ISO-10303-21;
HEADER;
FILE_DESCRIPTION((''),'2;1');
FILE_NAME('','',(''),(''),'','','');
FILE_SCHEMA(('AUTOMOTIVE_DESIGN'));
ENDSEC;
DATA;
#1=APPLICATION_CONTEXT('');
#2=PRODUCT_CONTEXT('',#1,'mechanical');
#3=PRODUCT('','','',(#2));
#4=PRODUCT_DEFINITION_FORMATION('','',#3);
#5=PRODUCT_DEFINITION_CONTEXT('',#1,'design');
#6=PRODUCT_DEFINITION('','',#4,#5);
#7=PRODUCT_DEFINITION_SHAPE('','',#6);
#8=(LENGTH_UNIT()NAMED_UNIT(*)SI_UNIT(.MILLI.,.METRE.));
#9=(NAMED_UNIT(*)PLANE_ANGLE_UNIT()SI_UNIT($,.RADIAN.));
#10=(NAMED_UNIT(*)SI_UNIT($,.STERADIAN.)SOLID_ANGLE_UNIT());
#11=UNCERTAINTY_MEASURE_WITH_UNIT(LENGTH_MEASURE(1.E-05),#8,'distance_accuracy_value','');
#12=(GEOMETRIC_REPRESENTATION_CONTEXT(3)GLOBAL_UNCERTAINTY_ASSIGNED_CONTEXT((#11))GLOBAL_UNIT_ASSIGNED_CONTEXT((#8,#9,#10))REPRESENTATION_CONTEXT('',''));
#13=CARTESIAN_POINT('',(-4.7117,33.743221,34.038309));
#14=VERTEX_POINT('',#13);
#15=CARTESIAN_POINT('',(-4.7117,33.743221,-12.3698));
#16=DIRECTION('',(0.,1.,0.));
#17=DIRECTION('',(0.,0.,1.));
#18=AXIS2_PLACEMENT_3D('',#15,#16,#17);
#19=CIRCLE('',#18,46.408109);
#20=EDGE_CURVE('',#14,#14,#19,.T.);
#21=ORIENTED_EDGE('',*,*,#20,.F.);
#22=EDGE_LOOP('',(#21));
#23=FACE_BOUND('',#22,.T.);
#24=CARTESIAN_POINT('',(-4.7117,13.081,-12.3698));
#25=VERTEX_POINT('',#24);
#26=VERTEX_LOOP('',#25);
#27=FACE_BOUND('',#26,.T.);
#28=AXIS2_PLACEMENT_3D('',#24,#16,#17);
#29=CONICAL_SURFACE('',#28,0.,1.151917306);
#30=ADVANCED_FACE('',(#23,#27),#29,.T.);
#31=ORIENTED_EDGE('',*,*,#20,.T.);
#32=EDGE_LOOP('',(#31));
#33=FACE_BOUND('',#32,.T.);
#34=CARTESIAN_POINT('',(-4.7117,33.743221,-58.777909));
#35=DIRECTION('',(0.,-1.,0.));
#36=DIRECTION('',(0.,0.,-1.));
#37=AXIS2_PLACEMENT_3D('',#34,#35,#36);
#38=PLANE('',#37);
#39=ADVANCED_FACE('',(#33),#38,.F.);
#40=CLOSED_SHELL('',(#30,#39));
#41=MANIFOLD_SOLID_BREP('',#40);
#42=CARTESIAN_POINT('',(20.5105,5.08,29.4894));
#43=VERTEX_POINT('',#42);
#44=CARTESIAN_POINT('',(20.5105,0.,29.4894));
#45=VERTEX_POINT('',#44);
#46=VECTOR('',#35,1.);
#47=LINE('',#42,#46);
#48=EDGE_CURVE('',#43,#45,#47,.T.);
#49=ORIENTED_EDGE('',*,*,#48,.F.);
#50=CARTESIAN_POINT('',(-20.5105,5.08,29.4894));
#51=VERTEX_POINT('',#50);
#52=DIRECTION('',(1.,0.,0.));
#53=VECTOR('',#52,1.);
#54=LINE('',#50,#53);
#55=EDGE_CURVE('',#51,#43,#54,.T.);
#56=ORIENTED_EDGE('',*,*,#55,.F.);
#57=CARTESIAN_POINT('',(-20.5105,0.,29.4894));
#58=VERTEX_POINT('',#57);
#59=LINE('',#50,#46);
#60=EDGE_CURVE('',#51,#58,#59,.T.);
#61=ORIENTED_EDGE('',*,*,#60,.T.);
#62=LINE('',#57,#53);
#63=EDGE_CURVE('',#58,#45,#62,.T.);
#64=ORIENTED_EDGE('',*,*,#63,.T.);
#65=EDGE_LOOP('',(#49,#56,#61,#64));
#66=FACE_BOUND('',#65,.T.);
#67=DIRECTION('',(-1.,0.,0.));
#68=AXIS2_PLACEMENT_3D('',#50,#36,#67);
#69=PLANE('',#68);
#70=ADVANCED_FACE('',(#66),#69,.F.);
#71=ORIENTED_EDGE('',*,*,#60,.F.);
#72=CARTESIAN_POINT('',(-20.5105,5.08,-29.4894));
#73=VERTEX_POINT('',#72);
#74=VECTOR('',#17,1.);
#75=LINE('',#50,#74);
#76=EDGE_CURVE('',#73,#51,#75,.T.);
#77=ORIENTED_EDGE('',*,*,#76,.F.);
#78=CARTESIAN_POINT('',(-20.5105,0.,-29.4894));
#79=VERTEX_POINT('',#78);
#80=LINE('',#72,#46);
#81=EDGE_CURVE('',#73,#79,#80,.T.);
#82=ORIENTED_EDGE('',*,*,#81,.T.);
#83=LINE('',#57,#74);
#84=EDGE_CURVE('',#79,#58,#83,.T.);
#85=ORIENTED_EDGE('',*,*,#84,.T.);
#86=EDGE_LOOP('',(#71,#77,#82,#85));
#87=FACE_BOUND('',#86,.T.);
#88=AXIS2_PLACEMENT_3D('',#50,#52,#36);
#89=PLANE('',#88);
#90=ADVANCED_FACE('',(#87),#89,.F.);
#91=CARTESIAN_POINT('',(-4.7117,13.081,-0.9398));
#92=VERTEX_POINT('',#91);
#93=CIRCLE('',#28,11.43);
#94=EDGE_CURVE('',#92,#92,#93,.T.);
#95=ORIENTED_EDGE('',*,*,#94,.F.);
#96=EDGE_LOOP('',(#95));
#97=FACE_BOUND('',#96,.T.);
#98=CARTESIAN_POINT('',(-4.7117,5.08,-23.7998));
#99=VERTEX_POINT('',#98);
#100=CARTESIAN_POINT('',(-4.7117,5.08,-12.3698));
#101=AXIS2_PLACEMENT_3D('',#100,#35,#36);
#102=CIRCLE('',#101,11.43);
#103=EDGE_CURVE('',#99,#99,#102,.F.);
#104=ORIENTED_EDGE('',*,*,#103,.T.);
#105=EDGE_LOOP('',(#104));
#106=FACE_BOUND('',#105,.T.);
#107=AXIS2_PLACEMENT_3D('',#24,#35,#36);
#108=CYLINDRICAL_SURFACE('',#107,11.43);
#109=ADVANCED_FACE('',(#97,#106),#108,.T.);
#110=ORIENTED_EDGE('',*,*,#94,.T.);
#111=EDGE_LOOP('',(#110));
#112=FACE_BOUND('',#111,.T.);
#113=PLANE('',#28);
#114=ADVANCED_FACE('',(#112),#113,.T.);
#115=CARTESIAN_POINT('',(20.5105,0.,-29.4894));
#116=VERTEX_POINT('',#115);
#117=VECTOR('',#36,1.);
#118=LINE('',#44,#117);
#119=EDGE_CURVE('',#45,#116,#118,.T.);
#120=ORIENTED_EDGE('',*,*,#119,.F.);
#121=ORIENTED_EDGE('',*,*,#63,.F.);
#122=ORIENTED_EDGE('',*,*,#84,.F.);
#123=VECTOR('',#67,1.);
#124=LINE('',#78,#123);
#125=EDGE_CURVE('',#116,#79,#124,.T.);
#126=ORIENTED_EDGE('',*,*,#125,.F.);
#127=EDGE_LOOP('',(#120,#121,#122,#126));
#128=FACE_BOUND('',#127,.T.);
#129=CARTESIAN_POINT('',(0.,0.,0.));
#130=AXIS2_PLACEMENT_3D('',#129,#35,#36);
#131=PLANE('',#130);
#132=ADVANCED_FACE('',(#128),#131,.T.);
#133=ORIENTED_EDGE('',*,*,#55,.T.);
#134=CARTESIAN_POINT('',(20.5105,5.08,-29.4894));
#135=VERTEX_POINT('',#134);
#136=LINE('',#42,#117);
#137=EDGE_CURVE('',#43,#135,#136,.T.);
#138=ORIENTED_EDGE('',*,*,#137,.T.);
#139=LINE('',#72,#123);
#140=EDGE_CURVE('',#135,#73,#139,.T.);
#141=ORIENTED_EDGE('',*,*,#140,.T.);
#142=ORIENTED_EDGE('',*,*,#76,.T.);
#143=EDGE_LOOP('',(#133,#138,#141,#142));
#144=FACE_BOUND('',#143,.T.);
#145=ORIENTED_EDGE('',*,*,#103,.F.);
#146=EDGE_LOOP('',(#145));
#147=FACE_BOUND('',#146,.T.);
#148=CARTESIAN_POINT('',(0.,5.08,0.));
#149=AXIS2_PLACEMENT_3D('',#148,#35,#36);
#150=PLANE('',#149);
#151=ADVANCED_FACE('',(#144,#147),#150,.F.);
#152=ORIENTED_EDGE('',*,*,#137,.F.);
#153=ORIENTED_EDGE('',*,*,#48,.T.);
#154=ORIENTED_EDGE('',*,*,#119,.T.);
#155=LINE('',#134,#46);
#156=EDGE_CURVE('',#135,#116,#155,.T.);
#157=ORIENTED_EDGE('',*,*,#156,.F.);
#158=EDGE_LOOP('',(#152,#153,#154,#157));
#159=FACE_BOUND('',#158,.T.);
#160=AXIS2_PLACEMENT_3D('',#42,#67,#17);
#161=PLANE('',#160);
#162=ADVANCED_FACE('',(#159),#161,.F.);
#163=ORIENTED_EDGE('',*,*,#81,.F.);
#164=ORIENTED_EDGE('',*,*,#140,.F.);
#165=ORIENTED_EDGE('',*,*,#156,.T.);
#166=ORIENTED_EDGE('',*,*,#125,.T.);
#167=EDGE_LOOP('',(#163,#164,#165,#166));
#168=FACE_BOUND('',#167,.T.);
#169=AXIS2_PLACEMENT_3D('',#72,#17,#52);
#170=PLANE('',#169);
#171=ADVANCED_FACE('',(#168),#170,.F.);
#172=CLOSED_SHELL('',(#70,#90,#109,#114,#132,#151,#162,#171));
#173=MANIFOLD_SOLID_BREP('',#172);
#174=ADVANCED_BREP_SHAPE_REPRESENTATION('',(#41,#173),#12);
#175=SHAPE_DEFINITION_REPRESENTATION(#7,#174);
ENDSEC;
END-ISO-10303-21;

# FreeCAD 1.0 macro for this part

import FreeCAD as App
import Part
import Sketcher

V = App.Vector
Q = App.Units.Quantity


def add_polygon(sketch, points):
    """Adds a closed chain of lines whose ends are joined by coincident constraints."""
    first, n = sketch.GeometryCount, len(points)
    for a, b in zip(points, points[1:] + points[:1]):
        sketch.addGeometry(Part.LineSegment(App.Vector(*a, 0), App.Vector(*b, 0)), False)
    for i in range(n):
        sketch.addConstraint(Sketcher.Constraint("Coincident", first + i, 2, first + (i + 1) % n, 1))

doc = App.newDocument("Part")
body = doc.addObject("PartDesign::Body", "Body")

sketch1 = body.newObject("Sketcher::SketchObject", "Sketch")
sketch1.AttachmentSupport = (doc.getObject("XZ_Plane"), [""])
sketch1.MapMode = "FlatFace"
add_polygon(sketch1, [(-21, -29), (-21, 29), (21, 29), (21, -29)])
sketch1.addConstraint([
    Sketcher.Constraint("Vertical", 0),
    Sketcher.Constraint("Horizontal", 1),
    Sketcher.Constraint("Vertical", 2),
    Sketcher.Constraint("Horizontal", 3),
    Sketcher.Constraint("Symmetric", 0, 2, 2, 2, -1, 1),
    Sketcher.Constraint("DistanceX", 1, 1, 1, 2, Q("1.615 in")),
    Sketcher.Constraint("DistanceY", 0, 1, 0, 2, Q("2.322 in")),
])
pad1 = body.newObject("PartDesign::Pad", "Pad")
pad1.Profile = sketch1
pad1.Length = Q("0.2 in")
pad1.Reversed = True

sketch2 = body.newObject("Sketcher::SketchObject", "Sketch001")
sketch2.AttachmentSupport = (doc.getObject("XZ_Plane"), [""])
sketch2.MapMode = "FlatFace"
sketch2.AttachmentOffset = App.Placement(V(0, 0, -0.2 * 25.4), App.Rotation())
sketch2.addGeometry(Part.Circle(V(-5, -12, 0), V(0, 0, 1), 11), False)
sketch2.addConstraint([
    Sketcher.Constraint("Diameter", 0, Q("0.9 in")),
    Sketcher.Constraint("DistanceY", 0, 3, -1, 1, Q("0.487 in")),
    Sketcher.Constraint("DistanceX", 0, 3, -1, 1, Q("0.1855 in")),
])
pad2 = body.newObject("PartDesign::Pad", "Pad001")
pad2.Profile = sketch2
pad2.Length = Q("0.315 in")
pad2.Reversed = True
body2 = doc.addObject("PartDesign::Body", "Body001")

sketch3 = body2.newObject("Sketcher::SketchObject", "Sketch002")
sketch3.AttachmentSupport = (doc.getObject("YZ_Plane001"), [""])
sketch3.MapMode = "FlatFace"
sketch3.AttachmentOffset = App.Placement(V(0, 0, -0.1855 * 25.4), App.Rotation())
add_polygon(sketch3, [(13, -12), (34, -59), (34, -12)])
sketch3.addGeometry(Part.LineSegment(V(34, -12, 0), V(13, -12, 0)), True)
sketch3.addConstraint([
    Sketcher.Constraint("Vertical", 1),
    Sketcher.Constraint("Horizontal", 2),
    Sketcher.Constraint("Horizontal", 3),
    Sketcher.Constraint("Coincident", 3, 1, 1, 2),
    Sketcher.Constraint("Equal", 2, 3),
    Sketcher.Constraint("Distance", 0, Q("2 in")),
    Sketcher.Constraint("Angle", 0, Q("-66 deg")),
    Sketcher.Constraint("DistanceY", 1, 2, -1, 1, Q("0.487 in")),
    Sketcher.Constraint("DistanceX", -1, 1, 2, 2, Q("0.515 in")),
])
revolution = body2.newObject("PartDesign::Revolution", "Revolution")
revolution.Profile = sketch3
revolution.ReferenceAxis = (sketch3, ["Axis0"])
revolution.Angle = 360

doc.recompute()
